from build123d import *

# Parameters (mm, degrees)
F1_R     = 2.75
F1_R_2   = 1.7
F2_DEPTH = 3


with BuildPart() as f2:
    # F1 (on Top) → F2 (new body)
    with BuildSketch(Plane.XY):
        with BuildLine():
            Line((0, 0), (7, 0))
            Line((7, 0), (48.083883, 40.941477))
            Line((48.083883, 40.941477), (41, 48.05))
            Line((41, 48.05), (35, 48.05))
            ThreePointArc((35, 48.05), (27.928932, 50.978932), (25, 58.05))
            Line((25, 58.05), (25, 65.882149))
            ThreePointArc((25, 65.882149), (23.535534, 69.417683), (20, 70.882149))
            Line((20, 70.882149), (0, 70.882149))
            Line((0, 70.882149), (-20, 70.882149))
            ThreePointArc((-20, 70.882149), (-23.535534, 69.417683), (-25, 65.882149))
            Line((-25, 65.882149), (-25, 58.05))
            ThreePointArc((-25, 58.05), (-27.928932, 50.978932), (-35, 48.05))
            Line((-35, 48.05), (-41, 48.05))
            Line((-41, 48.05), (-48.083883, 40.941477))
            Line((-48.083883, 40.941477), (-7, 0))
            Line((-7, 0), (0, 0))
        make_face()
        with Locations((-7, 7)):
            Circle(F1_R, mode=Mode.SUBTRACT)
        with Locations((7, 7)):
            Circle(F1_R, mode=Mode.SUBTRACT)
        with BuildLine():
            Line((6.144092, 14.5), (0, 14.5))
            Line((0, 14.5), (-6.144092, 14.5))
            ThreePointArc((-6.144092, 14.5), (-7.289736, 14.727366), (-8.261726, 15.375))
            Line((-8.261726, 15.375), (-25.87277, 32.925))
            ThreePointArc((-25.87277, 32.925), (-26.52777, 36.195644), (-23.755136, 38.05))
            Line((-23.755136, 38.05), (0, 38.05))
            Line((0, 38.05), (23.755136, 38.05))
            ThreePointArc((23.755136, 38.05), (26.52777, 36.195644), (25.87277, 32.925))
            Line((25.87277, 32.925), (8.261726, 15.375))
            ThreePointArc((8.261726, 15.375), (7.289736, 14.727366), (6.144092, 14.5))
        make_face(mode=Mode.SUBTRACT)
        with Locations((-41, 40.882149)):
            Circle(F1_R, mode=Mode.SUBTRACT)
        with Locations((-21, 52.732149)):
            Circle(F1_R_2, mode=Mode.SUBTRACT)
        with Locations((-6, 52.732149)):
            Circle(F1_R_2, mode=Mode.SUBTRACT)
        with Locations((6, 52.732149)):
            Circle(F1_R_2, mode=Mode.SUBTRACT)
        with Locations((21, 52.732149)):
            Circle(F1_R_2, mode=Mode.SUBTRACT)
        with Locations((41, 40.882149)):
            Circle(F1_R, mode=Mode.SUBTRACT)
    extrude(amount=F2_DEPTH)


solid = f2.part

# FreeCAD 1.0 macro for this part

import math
import FreeCAD as App
import Part
import Sketcher
from FreeCAD import Vector

doc = App.newDocument("Part")
body = doc.addObject("PartDesign::Body", "Body")

sketch1 = doc.addObject("Sketcher::SketchObject", "Sketch")
body.addObject(sketch1)
sketch1.AttachmentSupport = (doc.XY_Plane, [""])
sketch1.MapMode = "FlatFace"
sketch1.addGeometry([
    Part.LineSegment(Vector(7, 0, 0), Vector(48.1, 40.9, 0)),
    Part.LineSegment(Vector(48.1, 40.9, 0), Vector(41, 48, 0)),
    Part.LineSegment(Vector(41, 48, 0), Vector(35, 48, 0)),
    Part.ArcOfCircle(Part.Circle(Vector(35, 58, 0), Vector(0, 0, 1), 10), math.radians(180), math.radians(270)),
    Part.LineSegment(Vector(25, 58, 0), Vector(25, 65.9, 0)),
    Part.ArcOfCircle(Part.Circle(Vector(20, 65.9, 0), Vector(0, 0, 1), 5), math.radians(0), math.radians(90)),
    Part.LineSegment(Vector(20, 70.9, 0), Vector(-20, 70.9, 0)),
    Part.ArcOfCircle(Part.Circle(Vector(-20, 65.9, 0), Vector(0, 0, 1), 5), math.radians(90), math.radians(180)),
    Part.LineSegment(Vector(-25, 65.9, 0), Vector(-25, 58, 0)),
    Part.ArcOfCircle(Part.Circle(Vector(-35, 58, 0), Vector(0, 0, 1), 10), math.radians(-90), math.radians(0)),
    Part.LineSegment(Vector(-35, 48, 0), Vector(-41, 48, 0)),
    Part.LineSegment(Vector(-41, 48, 0), Vector(-48.1, 40.9, 0)),
    Part.LineSegment(Vector(-48.1, 40.9, 0), Vector(-7, 0, 0)),
    Part.LineSegment(Vector(-7, 0, 0), Vector(7, 0, 0)),
    Part.Circle(Vector(-7, 7, 0), Vector(0, 0, 1), 2.8),
    Part.Circle(Vector(7, 7, 0), Vector(0, 0, 1), 2.8),
    Part.ArcOfCircle(Part.Circle(Vector(6.1, 17.5, 0), Vector(0, 0, 1), 3), math.radians(-90), math.radians(-45)),
    Part.LineSegment(Vector(6.1, 14.5, 0), Vector(-6.1, 14.5, 0)),
    Part.ArcOfCircle(Part.Circle(Vector(-6.1, 17.5, 0), Vector(0, 0, 1), 3), math.radians(-135), math.radians(-90)),
    Part.LineSegment(Vector(-8.3, 15.4, 0), Vector(-25.9, 32.9, 0)),
    Part.ArcOfCircle(Part.Circle(Vector(-23.8, 35.1, 0), Vector(0, 0, 1), 3), math.radians(90), math.radians(225)),
    Part.LineSegment(Vector(-23.8, 38, 0), Vector(23.8, 38, 0)),
    Part.ArcOfCircle(Part.Circle(Vector(23.8, 35.1, 0), Vector(0, 0, 1), 3), math.radians(-45), math.radians(90)),
    Part.LineSegment(Vector(25.9, 32.9, 0), Vector(8.3, 15.4, 0)),
    Part.Circle(Vector(-41, 40.9, 0), Vector(0, 0, 1), 2.8),
    Part.Circle(Vector(-21, 52.7, 0), Vector(0, 0, 1), 1.7),
    Part.Circle(Vector(-6, 52.7, 0), Vector(0, 0, 1), 1.7),
    Part.Circle(Vector(41, 40.9, 0), Vector(0, 0, 1), 2.8),
    Part.Circle(Vector(6, 52.7, 0), Vector(0, 0, 1), 1.7),
    Part.Circle(Vector(21, 52.7, 0), Vector(0, 0, 1), 1.7),
], False)
sketch1.addConstraint([
    Sketcher.Constraint("Coincident", 0, 2, 1, 1),
    Sketcher.Constraint("Coincident", 1, 2, 2, 1),
    Sketcher.Constraint("Tangent", 2, 2, 3, 2),
    Sketcher.Constraint("Tangent", 3, 1, 4, 1),
    Sketcher.Constraint("Tangent", 4, 2, 5, 1),
    Sketcher.Constraint("Tangent", 5, 2, 6, 1),
    Sketcher.Constraint("Tangent", 6, 2, 7, 1),
    Sketcher.Constraint("Tangent", 7, 2, 8, 1),
    Sketcher.Constraint("Tangent", 8, 2, 9, 2),
    Sketcher.Constraint("Tangent", 9, 1, 10, 1),
    Sketcher.Constraint("Coincident", 10, 2, 11, 1),
    Sketcher.Constraint("Coincident", 11, 2, 12, 1),
    Sketcher.Constraint("Coincident", 12, 2, 13, 1),
    Sketcher.Constraint("Coincident", 13, 2, 0, 1),
    Sketcher.Constraint("Tangent", 16, 1, 17, 1),
    Sketcher.Constraint("Tangent", 17, 2, 18, 2),
    Sketcher.Constraint("Tangent", 18, 1, 19, 1),
    Sketcher.Constraint("Tangent", 19, 2, 20, 2),
    Sketcher.Constraint("Tangent", 20, 1, 21, 1),
    Sketcher.Constraint("Tangent", 21, 2, 22, 2),
    Sketcher.Constraint("Tangent", 22, 1, 23, 1),
    Sketcher.Constraint("Tangent", 23, 2, 16, 2),
    Sketcher.Constraint("Horizontal", 2),
    Sketcher.Constraint("Vertical", 4),
    Sketcher.Constraint("Horizontal", 6),
    Sketcher.Constraint("Vertical", 8),
    Sketcher.Constraint("Horizontal", 10),
    Sketcher.Constraint("Horizontal", 13),
    Sketcher.Constraint("Horizontal", 17),
    Sketcher.Constraint("Horizontal", 21),
    Sketcher.Constraint("Equal", 5, 7),
    Sketcher.Constraint("Equal", 3, 9),
    Sketcher.Constraint("Equal", 14, 15),
    Sketcher.Constraint("Equal", 16, 18),
    Sketcher.Constraint("Equal", 18, 20),
    Sketcher.Constraint("Equal", 20, 22),
    Sketcher.Constraint("Equal", 15, 24),
    Sketcher.Constraint("Equal", 25, 26),
    Sketcher.Constraint("Equal", 24, 27),
    Sketcher.Constraint("Equal", 26, 28),
    Sketcher.Constraint("Equal", 28, 29),
    Sketcher.Constraint("Symmetric", 12, 2, 13, 2, -1, 1),
    Sketcher.Constraint("Symmetric", 3, 3, 9, 3, -2),
    Sketcher.Constraint("Symmetric", 14, 3, 15, 3, -2),
    Sketcher.Constraint("Symmetric", 24, 3, 27, 3, -2),
    Sketcher.Constraint("Symmetric", 26, 3, 28, 3, -2),
    Sketcher.Constraint("Symmetric", 25, 3, 29, 3, -2),
    Sketcher.Constraint("Symmetric", 0, 2, 11, 2, -2),
    Sketcher.Constraint("Symmetric", 19, 2, 22, 1, -2),
    Sketcher.Constraint("Perpendicular", 0, 1),
    Sketcher.Constraint("Perpendicular", 11, 12),
    Sketcher.Constraint("Parallel", 12, 19),
    Sketcher.Constraint("Horizontal", 25, 3, 26, 3),
    Sketcher.Constraint("Vertical", 27, 3, 1, 2),
    Sketcher.Constraint("Vertical", 14, 3, 12, 2),
    Sketcher.Constraint("Radius", 3, 9.999999),
    Sketcher.Constraint("Radius", 5, 5.0),
    Sketcher.Constraint("Radius", 16, 3.0),
    Sketcher.Constraint("Diameter", 14, 5.5),
    Sketcher.Constraint("Diameter", 25, 3.4),
    Sketcher.Constraint("DistanceX", 2, 2, 2, 1, 6.0),
    Sketcher.Constraint("DistanceX", 6, 2, 6, 1, 40.0),
    Sketcher.Constraint("DistanceX", 13, 1, 13, 2, 14.0),
    Sketcher.Constraint("DistanceY", -1, 1, 14, 3, 7.0),
    Sketcher.Constraint("DistanceX", 25, 3, -1, 1, 21.0),
    Sketcher.Constraint("DistanceX", 26, 3, -1, 1, 6.0),
    Sketcher.Constraint("DistanceY", 20, 3, 9, 3, 22.999999),
    Sketcher.Constraint("DistanceY", 24, 3, 7, 3, 25.0),
    Sketcher.Constraint("DistanceY", -1, 1, 16, 3, 17.5),
    Sketcher.Constraint("DistanceY", -1, 1, 3, 3, 58.049999),
    Sketcher.Constraint("DistanceY", 25, 3, 7, 3, 13.15),
    Sketcher.Constraint("DistanceY", -1, 1, 18, 1, 15.375),
    Sketcher.Constraint("DistanceY", 4, 1, 4, 2, 7.832149),
    Sketcher.Constraint("DistanceX", 17, 2, 17, 1, 12.288184),
])
pad1 = doc.addObject("PartDesign::Pad", "Pad")
body.addObject(pad1)
pad1.Profile = sketch1
pad1.Length = 3

doc.recompute()
